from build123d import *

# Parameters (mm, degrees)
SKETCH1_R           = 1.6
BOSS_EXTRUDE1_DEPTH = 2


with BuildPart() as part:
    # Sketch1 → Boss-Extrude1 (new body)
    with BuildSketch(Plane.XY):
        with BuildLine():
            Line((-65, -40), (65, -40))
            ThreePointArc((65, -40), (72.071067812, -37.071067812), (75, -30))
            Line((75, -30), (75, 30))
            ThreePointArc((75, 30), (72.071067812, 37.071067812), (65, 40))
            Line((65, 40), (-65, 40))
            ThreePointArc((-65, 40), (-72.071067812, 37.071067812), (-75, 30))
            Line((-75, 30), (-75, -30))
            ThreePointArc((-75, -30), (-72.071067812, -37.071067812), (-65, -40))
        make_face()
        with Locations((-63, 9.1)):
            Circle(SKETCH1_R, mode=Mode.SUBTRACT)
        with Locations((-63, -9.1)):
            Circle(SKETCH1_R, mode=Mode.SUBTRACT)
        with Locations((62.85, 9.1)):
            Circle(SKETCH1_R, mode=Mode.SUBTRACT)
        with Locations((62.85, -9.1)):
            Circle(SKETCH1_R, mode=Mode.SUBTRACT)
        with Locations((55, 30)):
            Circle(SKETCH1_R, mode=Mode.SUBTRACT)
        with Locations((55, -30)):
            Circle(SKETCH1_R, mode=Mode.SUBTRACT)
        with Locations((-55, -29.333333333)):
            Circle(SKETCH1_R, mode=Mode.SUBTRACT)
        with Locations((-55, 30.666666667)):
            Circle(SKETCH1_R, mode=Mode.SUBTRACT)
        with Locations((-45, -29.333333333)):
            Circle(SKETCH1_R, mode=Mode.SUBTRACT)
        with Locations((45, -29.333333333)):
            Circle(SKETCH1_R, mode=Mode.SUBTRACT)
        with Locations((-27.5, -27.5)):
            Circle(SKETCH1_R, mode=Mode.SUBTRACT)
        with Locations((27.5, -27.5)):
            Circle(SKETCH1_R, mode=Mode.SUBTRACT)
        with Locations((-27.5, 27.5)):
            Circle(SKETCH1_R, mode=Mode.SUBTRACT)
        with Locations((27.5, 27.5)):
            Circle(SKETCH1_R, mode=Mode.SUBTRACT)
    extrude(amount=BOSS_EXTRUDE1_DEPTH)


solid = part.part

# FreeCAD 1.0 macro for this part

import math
import FreeCAD as App
import Part
import Sketcher
from FreeCAD import Vector

doc = App.newDocument("Part")
body = doc.addObject("PartDesign::Body", "Body")

# Sketch on XY plane
sketch1 = doc.addObject("Sketcher::SketchObject", "Sketch")
body.addObject(sketch1)
sketch1.AttachmentSupport = (doc.XY_Plane, [""])
sketch1.MapMode = "FlatFace"
sketch1.addGeometry(Part.LineSegment(Vector(-65, -40, 0), Vector(65, -40, 0)), False)
sketch1.addGeometry(Part.ArcOfCircle(Part.Circle(Vector(65, -30, 0), Vector(0, 0, 1), 10), math.radians(-90), math.radians(0)), False)
sketch1.addGeometry(Part.LineSegment(Vector(75, -30, 0), Vector(75, 30, 0)), False)
sketch1.addGeometry(Part.ArcOfCircle(Part.Circle(Vector(65, 30, 0), Vector(0, 0, 1), 10), math.radians(0), math.radians(90)), False)
sketch1.addGeometry(Part.LineSegment(Vector(65, 40, 0), Vector(-65, 40, 0)), False)
sketch1.addGeometry(Part.ArcOfCircle(Part.Circle(Vector(-65, 30, 0), Vector(0, 0, 1), 10), math.radians(90), math.radians(180)), False)
sketch1.addGeometry(Part.LineSegment(Vector(-75, 30, 0), Vector(-75, -30, 0)), False)
sketch1.addGeometry(Part.ArcOfCircle(Part.Circle(Vector(-65, -30, 0), Vector(0, 0, 1), 10), math.radians(180), math.radians(270)), False)
sketch1.addGeometry(Part.Circle(Vector(-55, -29.3, 0), Vector(0, 0, 1), 1.6), False)
sketch1.addGeometry(Part.Circle(Vector(-45, -29.3, 0), Vector(0, 0, 1), 1.6), False)
sketch1.addGeometry(Part.Circle(Vector(-27.5, -27.5, 0), Vector(0, 0, 1), 1.6), False)
sketch1.addGeometry(Part.Circle(Vector(-63, -9.1, 0), Vector(0, 0, 1), 1.6), False)
sketch1.addGeometry(Part.Circle(Vector(27.5, -27.5, 0), Vector(0, 0, 1), 1.6), False)
sketch1.addGeometry(Part.Circle(Vector(45, -29.3, 0), Vector(0, 0, 1), 1.6), False)
sketch1.addGeometry(Part.Circle(Vector(55, -30, 0), Vector(0, 0, 1), 1.6), False)
sketch1.addGeometry(Part.Circle(Vector(62.9, -9.1, 0), Vector(0, 0, 1), 1.6), False)
sketch1.addGeometry(Part.Circle(Vector(-63, 9.1, 0), Vector(0, 0, 1), 1.6), False)
sketch1.addGeometry(Part.Circle(Vector(-55, 30.7, 0), Vector(0, 0, 1), 1.6), False)
sketch1.addGeometry(Part.Circle(Vector(-27.5, 27.5, 0), Vector(0, 0, 1), 1.6), False)
sketch1.addGeometry(Part.Circle(Vector(62.9, 9.1, 0), Vector(0, 0, 1), 1.6), False)
sketch1.addGeometry(Part.Circle(Vector(27.5, 27.5, 0), Vector(0, 0, 1), 1.6), False)
sketch1.addGeometry(Part.Circle(Vector(55, 30, 0), Vector(0, 0, 1), 1.6), False)
sketch1.addConstraint(Sketcher.Constraint("Tangent", 0, 2, 1, 1))
sketch1.addConstraint(Sketcher.Constraint("Tangent", 1, 2, 2, 1))
sketch1.addConstraint(Sketcher.Constraint("Tangent", 2, 2, 3, 1))
sketch1.addConstraint(Sketcher.Constraint("Tangent", 3, 2, 4, 1))
sketch1.addConstraint(Sketcher.Constraint("Tangent", 4, 2, 5, 1))
sketch1.addConstraint(Sketcher.Constraint("Tangent", 5, 2, 6, 1))
sketch1.addConstraint(Sketcher.Constraint("Tangent", 6, 2, 7, 1))
sketch1.addConstraint(Sketcher.Constraint("Tangent", 7, 2, 0, 1))
sketch1.addConstraint(Sketcher.Constraint("Horizontal", 0))
sketch1.addConstraint(Sketcher.Constraint("Vertical", 2))
sketch1.addConstraint(Sketcher.Constraint("Horizontal", 4))
sketch1.addConstraint(Sketcher.Constraint("Vertical", 6))
sketch1.addConstraint(Sketcher.Constraint("Equal", 1, 3))
sketch1.addConstraint(Sketcher.Constraint("Equal", 3, 5))
sketch1.addConstraint(Sketcher.Constraint("Equal", 5, 7))
sketch1.addConstraint(Sketcher.Constraint("Equal", 8, 9))
sketch1.addConstraint(Sketcher.Constraint("Equal", 9, 10))
sketch1.addConstraint(Sketcher.Constraint("Equal", 10, 11))
sketch1.addConstraint(Sketcher.Constraint("Equal", 11, 12))
sketch1.addConstraint(Sketcher.Constraint("Equal", 12, 13))
sketch1.addConstraint(Sketcher.Constraint("Equal", 13, 14))
sketch1.addConstraint(Sketcher.Constraint("Equal", 14, 15))
sketch1.addConstraint(Sketcher.Constraint("Equal", 15, 16))
sketch1.addConstraint(Sketcher.Constraint("Equal", 16, 17))
sketch1.addConstraint(Sketcher.Constraint("Equal", 17, 18))
sketch1.addConstraint(Sketcher.Constraint("Equal", 18, 19))
sketch1.addConstraint(Sketcher.Constraint("Equal", 19, 20))
sketch1.addConstraint(Sketcher.Constraint("Equal", 20, 21))
sketch1.addConstraint(Sketcher.Constraint("Symmetric", 1, 3, 5, 3, -1, 1))
sketch1.addConstraint(Sketcher.Constraint("Symmetric", 12, 3, 18, 3, -1, 1))
sketch1.addConstraint(Sketcher.Constraint("Symmetric", 10, 3, 20, 3, -1, 1))
sketch1.addConstraint(Sketcher.Constraint("Symmetric", 10, 3, 12, 3, -2))
sketch1.addConstraint(Sketcher.Constraint("Symmetric", 9, 3, 13, 3, -2))
sketch1.addConstraint(Sketcher.Constraint("Symmetric", 11, 3, 16, 3, -1))
sketch1.addConstraint(Sketcher.Constraint("Symmetric", 15, 3, 19, 3, -1))
sketch1.addConstraint(Sketcher.Constraint("Symmetric", 14, 3, 21, 3, -1))
sketch1.addConstraint(Sketcher.Constraint("Horizontal", 8, 3, 9, 3))
sketch1.addConstraint(Sketcher.Constraint("Horizontal", 7, 3, 14, 3))
sketch1.addConstraint(Sketcher.Constraint("Horizontal", 11, 3, 15, 3))
sketch1.addConstraint(Sketcher.Constraint("Vertical", 8, 3, 17, 3))
sketch1.addConstraint(Sketcher.Constraint("Radius", 1, 10.0))
sketch1.addConstraint(Sketcher.Constraint("Diameter", 8, 3.2))
sketch1.addConstraint(Sketcher.Constraint("DistanceX", 0, 1, 0, 2, 130.0))
sketch1.addConstraint(Sketcher.Constraint("DistanceY", 2, 1, 2, 2, 60.0))
sketch1.addConstraint(Sketcher.Constraint("DistanceX", 8, 3, -1, 1, 55.0))
sketch1.addConstraint(Sketcher.Constraint("DistanceX", 9, 3, -1, 1, 45.0))
sketch1.addConstraint(Sketcher.Constraint("DistanceX", 11, 3, -1, 1, 63.0))
sketch1.addConstraint(Sketcher.Constraint("DistanceX", -1, 1, 14, 3, 55.0))
sketch1.addConstraint(Sketcher.Constraint("DistanceX", 10, 3, 12, 3, 55.0))
sketch1.addConstraint(Sketcher.Constraint("DistanceY", 8, 3, 17, 3, 60.0))
sketch1.addConstraint(Sketcher.Constraint("DistanceY", 10, 3, 18, 3, 55.0))
sketch1.addConstraint(Sketcher.Constraint("DistanceY", 11, 3, -1, 1, 9.1))
sketch1.addConstraint(Sketcher.Constraint("DistanceX", -1, 1, 15, 3, 62.85))
sketch1.addConstraint(Sketcher.Constraint("DistanceY", 8, 3, -1, 1, 29.333333))
pad1 = doc.addObject("PartDesign::Pad", "Pad")
body.addObject(pad1)
pad1.Profile = sketch1
pad1.Length = 2

doc.recompute()
